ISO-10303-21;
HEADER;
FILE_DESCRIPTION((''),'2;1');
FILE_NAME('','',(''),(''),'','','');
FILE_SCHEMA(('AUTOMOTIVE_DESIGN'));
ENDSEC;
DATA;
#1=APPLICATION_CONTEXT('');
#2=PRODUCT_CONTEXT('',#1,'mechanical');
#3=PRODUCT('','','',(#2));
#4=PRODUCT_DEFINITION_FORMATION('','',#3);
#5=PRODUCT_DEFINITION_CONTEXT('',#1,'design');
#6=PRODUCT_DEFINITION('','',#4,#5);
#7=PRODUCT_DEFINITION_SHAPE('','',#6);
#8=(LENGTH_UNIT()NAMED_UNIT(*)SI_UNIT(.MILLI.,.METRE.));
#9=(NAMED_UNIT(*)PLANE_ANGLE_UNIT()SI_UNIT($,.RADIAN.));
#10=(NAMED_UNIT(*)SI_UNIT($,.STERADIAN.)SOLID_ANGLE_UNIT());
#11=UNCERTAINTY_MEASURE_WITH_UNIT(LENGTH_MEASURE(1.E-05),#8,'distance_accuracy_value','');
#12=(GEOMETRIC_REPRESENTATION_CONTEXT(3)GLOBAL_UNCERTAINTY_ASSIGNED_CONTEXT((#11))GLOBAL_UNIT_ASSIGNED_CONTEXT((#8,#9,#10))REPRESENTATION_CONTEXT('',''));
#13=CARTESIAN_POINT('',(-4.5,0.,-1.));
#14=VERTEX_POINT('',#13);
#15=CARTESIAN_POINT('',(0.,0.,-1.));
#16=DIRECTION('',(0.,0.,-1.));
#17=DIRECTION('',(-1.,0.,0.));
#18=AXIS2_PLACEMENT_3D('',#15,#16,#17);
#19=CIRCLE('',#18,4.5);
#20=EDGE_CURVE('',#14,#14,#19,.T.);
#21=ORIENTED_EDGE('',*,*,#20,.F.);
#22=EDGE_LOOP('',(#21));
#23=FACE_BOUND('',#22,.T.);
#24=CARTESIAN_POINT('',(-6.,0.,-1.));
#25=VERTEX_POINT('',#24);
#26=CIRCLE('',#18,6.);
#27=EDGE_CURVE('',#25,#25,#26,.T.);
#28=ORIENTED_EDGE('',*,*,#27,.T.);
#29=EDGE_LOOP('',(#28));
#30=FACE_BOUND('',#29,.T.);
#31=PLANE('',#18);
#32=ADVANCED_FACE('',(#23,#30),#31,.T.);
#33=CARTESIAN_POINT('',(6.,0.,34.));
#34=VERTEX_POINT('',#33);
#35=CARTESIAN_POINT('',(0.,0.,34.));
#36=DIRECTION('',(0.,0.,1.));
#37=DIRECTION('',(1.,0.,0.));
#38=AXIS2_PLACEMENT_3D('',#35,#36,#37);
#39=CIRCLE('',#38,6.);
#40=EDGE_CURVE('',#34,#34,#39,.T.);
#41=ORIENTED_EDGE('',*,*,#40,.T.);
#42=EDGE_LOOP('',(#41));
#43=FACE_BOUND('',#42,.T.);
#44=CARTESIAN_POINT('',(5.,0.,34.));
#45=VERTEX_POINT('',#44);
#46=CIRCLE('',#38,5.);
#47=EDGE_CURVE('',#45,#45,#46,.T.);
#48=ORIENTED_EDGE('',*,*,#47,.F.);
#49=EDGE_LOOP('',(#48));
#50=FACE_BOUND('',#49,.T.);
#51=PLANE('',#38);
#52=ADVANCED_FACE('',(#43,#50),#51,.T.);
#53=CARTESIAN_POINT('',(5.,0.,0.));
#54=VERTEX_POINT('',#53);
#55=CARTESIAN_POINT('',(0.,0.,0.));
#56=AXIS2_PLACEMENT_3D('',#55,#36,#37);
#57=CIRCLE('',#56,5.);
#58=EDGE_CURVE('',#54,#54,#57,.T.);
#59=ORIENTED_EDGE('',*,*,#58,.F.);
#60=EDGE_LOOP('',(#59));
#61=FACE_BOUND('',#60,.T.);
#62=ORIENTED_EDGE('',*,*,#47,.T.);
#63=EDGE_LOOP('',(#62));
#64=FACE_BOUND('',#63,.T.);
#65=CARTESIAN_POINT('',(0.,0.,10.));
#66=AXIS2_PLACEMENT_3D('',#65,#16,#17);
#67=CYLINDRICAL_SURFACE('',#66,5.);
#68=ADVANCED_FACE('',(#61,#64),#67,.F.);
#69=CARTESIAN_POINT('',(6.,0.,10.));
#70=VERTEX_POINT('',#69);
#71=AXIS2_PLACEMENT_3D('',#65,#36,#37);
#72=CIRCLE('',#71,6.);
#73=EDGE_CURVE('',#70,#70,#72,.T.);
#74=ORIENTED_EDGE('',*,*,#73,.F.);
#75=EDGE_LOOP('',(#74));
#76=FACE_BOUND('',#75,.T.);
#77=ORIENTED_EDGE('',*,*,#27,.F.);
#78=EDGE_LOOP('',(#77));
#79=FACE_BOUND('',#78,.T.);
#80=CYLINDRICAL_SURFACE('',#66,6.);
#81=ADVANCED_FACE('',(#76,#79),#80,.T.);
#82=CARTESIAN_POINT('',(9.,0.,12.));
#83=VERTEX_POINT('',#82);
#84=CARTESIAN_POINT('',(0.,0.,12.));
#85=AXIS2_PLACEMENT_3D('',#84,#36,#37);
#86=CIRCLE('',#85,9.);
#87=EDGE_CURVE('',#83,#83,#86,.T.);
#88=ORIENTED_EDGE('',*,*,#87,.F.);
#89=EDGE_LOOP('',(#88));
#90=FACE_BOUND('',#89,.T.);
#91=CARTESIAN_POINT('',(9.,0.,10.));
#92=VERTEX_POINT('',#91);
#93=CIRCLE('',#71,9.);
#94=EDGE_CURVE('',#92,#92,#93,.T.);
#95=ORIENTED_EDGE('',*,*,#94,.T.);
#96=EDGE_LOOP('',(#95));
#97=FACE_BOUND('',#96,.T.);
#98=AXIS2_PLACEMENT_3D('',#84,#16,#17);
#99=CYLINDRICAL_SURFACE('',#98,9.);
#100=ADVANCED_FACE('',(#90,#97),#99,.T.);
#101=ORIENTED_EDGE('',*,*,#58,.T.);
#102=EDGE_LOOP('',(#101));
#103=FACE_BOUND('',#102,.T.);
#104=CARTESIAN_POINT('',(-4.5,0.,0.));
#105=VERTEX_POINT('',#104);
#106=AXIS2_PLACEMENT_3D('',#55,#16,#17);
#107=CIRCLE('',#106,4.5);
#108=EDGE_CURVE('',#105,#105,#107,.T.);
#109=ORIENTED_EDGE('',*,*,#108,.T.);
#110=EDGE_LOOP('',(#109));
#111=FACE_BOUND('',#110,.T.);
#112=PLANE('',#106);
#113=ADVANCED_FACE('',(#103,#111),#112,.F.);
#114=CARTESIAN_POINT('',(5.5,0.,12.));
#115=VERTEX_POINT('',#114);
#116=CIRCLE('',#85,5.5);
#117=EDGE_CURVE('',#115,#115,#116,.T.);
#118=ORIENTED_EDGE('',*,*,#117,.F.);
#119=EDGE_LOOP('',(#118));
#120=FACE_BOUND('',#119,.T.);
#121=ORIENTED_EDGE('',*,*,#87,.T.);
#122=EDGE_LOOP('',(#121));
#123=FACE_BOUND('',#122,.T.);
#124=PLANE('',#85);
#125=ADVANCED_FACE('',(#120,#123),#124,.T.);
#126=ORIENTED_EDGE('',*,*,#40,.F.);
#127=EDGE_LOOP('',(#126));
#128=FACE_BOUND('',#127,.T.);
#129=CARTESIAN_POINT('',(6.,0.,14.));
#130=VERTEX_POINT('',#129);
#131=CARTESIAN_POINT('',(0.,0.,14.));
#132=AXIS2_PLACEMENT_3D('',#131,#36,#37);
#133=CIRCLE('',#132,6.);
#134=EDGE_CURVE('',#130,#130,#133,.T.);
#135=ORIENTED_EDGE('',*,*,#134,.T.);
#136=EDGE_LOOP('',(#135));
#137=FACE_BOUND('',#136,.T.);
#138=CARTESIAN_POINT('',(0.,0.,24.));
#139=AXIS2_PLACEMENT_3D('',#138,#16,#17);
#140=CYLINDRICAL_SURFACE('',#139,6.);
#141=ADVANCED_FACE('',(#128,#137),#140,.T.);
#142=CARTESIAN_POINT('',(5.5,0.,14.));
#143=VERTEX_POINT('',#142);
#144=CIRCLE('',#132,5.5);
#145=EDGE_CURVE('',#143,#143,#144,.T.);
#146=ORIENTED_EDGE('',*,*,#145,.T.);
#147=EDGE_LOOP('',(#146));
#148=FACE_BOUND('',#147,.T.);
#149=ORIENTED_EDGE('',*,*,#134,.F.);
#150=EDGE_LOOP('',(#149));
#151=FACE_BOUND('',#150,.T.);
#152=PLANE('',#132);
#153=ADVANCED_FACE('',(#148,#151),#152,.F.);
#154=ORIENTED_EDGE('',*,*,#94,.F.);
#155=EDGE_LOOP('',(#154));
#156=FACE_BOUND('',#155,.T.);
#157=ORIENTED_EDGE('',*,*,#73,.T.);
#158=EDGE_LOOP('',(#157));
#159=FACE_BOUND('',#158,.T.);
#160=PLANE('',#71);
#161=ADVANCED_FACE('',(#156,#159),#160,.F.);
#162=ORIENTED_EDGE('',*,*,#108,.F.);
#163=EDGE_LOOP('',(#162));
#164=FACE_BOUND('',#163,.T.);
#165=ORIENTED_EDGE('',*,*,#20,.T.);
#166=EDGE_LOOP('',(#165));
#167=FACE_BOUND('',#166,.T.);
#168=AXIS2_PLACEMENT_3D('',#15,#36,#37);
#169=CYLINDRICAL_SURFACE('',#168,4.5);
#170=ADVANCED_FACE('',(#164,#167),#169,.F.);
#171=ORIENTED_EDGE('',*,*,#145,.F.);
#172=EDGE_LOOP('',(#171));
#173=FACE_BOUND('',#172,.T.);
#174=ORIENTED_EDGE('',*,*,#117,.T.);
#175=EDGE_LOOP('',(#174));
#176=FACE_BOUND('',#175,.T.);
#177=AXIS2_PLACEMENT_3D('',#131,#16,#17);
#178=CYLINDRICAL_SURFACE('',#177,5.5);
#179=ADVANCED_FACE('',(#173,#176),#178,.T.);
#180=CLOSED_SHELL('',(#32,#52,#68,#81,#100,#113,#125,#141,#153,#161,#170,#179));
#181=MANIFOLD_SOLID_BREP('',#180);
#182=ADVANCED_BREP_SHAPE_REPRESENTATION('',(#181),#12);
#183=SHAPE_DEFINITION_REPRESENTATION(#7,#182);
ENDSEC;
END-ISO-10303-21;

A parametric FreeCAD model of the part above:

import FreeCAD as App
import Part
import Sketcher

V = App.Vector
Q = App.Units.Quantity

doc = App.newDocument("Part")
body = doc.addObject("PartDesign::Body", "Body")

# Sketch on XY plane
sketch1 = doc.addObject("Sketcher::SketchObject", "Sketch")
body.addObject(sketch1)
sketch1.AttachmentSupport = (doc.XY_Plane, [""])
sketch1.MapMode = "FlatFace"
sketch1.addGeometry([
    Part.Circle(V(0, 0, 0), V(0, 0, 1), 6),
    Part.Circle(V(0, 0, 0), V(0, 0, 1), 5),
], False)
sketch1.addConstraint([
    Sketcher.Constraint("Coincident", 0, 3, -1, 1),
    Sketcher.Constraint("Coincident", 1, 3, -1, 1),
    Sketcher.Constraint("Diameter", 0, Q("12 mm")),
    Sketcher.Constraint("Diameter", 1, Q("10 mm")),
])
pad1 = doc.addObject("PartDesign::Pad", "Pad")
body.addObject(pad1)
pad1.Profile = sketch1
pad1.Length = 10

# Sketch on XY plane
sketch2 = doc.addObject("Sketcher::SketchObject", "Sketch001")
body.addObject(sketch2)
sketch2.AttachmentSupport = (doc.XY_Plane, [""])
sketch2.MapMode = "FlatFace"
sketch2.addGeometry([
    Part.Circle(V(0, 0, 0), V(0, 0, 1), 6),
    Part.Circle(V(0, 0, 0), V(0, 0, 1), 4.5),
], False)
sketch2.addConstraint([
    Sketcher.Constraint("Coincident", 0, 3, -1, 1),
    Sketcher.Constraint("Coincident", 1, 3, -1, 1),
    Sketcher.Constraint("Diameter", 0, Q("12 mm")),
    Sketcher.Constraint("Diameter", 1, Q("9 mm")),
])
pad2 = doc.addObject("PartDesign::Pad", "Pad001")
body.addObject(pad2)
pad2.Profile = sketch2
pad2.Length = 1
pad2.Reversed = True

# Sketch on XY plane
sketch3 = doc.addObject("Sketcher::SketchObject", "Sketch002")
body.addObject(sketch3)
sketch3.AttachmentSupport = (doc.XY_Plane, [""])
sketch3.MapMode = "FlatFace"
sketch3.AttachmentOffset = App.Placement(V(0, 0, 10), App.Rotation())
sketch3.addGeometry([
    Part.Circle(V(0, 0, 0), V(0, 0, 1), 9),
    Part.Circle(V(0, 0, 0), V(0, 0, 1), 5),
], False)
sketch3.addConstraint([
    Sketcher.Constraint("Coincident", 0, 3, -1, 1),
    Sketcher.Constraint("Coincident", 1, 3, -1, 1),
    Sketcher.Constraint("Diameter", 0, Q("18 mm")),
    Sketcher.Constraint("Diameter", 1, Q("10 mm")),
])
pad3 = doc.addObject("PartDesign::Pad", "Pad002")
body.addObject(pad3)
pad3.Profile = sketch3
pad3.Length = 2

# Sketch on XY plane
sketch4 = doc.addObject("Sketcher::SketchObject", "Sketch003")
body.addObject(sketch4)
sketch4.AttachmentSupport = (doc.XY_Plane, [""])
sketch4.MapMode = "FlatFace"
sketch4.AttachmentOffset = App.Placement(V(0, 0, 12), App.Rotation())
sketch4.addGeometry([
    Part.Circle(V(0, 0, 0), V(0, 0, 1), 5.5),
    Part.Circle(V(0, 0, 0), V(0, 0, 1), 5),
], False)
sketch4.addConstraint([
    Sketcher.Constraint("Coincident", 0, 3, -1, 1),
    Sketcher.Constraint("Coincident", 1, 3, -1, 1),
    Sketcher.Constraint("Diameter", 0, Q("11 mm")),
    Sketcher.Constraint("Diameter", 1, Q("10 mm")),
])
pad4 = doc.addObject("PartDesign::Pad", "Pad003")
body.addObject(pad4)
pad4.Profile = sketch4
pad4.Length = 2

# Sketch on XY plane
sketch5 = doc.addObject("Sketcher::SketchObject", "Sketch004")
body.addObject(sketch5)
sketch5.AttachmentSupport = (doc.XY_Plane, [""])
sketch5.MapMode = "FlatFace"
sketch5.AttachmentOffset = App.Placement(V(0, 0, 14), App.Rotation())
sketch5.addGeometry([
    Part.Circle(V(0, 0, 0), V(0, 0, 1), 6),
    Part.Circle(V(0, 0, 0), V(0, 0, 1), 5),
], False)
sketch5.addConstraint([
    Sketcher.Constraint("Coincident", 0, 3, -1, 1),
    Sketcher.Constraint("Coincident", 1, 3, -1, 1),
    Sketcher.Constraint("Diameter", 0, Q("12 mm")),
    Sketcher.Constraint("Diameter", 1, Q("10 mm")),
])
pad5 = doc.addObject("PartDesign::Pad", "Pad004")
body.addObject(pad5)
pad5.Profile = sketch5
pad5.Length = 10

# Sketch on XY plane
sketch6 = doc.addObject("Sketcher::SketchObject", "Sketch005")
body.addObject(sketch6)
sketch6.AttachmentSupport = (doc.XY_Plane, [""])
sketch6.MapMode = "FlatFace"
sketch6.AttachmentOffset = App.Placement(V(0, 0, 24), App.Rotation())
sketch6.addGeometry([
    Part.Circle(V(0, 0, 0), V(0, 0, 1), 6),
    Part.Circle(V(0, 0, 0), V(0, 0, 1), 5),
], False)
sketch6.addConstraint([
    Sketcher.Constraint("Coincident", 0, 3, -1, 1),
    Sketcher.Constraint("Coincident", 1, 3, -1, 1),
    Sketcher.Constraint("Diameter", 0, Q("12 mm")),
    Sketcher.Constraint("Diameter", 1, Q("10 mm")),
])
pad6 = doc.addObject("PartDesign::Pad", "Pad005")
body.addObject(pad6)
pad6.Profile = sketch6
pad6.Length = 10

doc.recompute()
